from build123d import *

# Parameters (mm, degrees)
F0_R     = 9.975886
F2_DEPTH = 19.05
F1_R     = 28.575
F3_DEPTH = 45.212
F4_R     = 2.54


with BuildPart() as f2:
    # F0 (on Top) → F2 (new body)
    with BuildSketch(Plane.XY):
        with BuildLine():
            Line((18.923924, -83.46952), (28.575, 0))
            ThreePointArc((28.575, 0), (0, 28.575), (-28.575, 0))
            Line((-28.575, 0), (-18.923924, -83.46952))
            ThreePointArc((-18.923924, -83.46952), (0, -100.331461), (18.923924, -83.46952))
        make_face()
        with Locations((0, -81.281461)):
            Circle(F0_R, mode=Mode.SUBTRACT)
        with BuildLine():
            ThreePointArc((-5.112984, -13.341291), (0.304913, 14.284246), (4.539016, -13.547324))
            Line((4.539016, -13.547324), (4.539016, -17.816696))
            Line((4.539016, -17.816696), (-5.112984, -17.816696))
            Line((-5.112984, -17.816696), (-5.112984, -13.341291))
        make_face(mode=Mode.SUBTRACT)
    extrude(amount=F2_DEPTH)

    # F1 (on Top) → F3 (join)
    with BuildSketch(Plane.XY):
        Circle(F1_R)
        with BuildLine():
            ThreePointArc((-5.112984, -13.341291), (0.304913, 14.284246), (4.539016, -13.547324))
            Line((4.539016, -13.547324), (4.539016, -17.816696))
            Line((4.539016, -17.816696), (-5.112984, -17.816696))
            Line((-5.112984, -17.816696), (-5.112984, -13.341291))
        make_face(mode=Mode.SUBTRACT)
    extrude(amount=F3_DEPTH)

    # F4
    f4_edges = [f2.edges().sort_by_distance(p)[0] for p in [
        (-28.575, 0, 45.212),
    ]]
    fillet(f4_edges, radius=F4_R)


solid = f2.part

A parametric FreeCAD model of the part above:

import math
import FreeCAD as App
import Part
import Sketcher

V = App.Vector
Q = App.Units.Quantity


def edges_at(feature, points):
    """Names of the edges that pass closest to the given points."""
    edges = feature.Shape.Edges
    near = lambda p: min(range(len(edges)), key=lambda i: edges[i].distToShape(Part.Vertex(*p))[0])
    return sorted({f"Edge{near(p) + 1}" for p in points})

doc = App.newDocument("Part")
body = doc.addObject("PartDesign::Body", "Body")

# Sketch on XY plane
sketch1 = body.newObject("Sketcher::SketchObject", "Sketch")
sketch1.AttachmentSupport = (doc.getObject("XY_Plane"), [""])
sketch1.MapMode = "FlatFace"
sketch1.addGeometry(Part.LineSegment(V(18.923924, -83.46952, 0), V(28.575, 0, 0)), False)
sketch1.addGeometry(Part.ArcOfCircle(Part.Circle(V(0, 0, 0), V(0, 0, 1), 28.575), math.radians(0), math.radians(180)), False)
sketch1.addGeometry(Part.LineSegment(V(-28.575, 0, 0), V(-18.923924, -83.46952, 0)), False)
sketch1.addGeometry(Part.ArcOfCircle(Part.Circle(V(0, -81.281461, 0), V(0, 0, 1), 19.05), math.radians(-173.404522), math.radians(-6.595478)), False)
sketch1.addGeometry(Part.Circle(V(0, -81.281461, 0), V(0, 0, 1), 9.975886), False)
sketch1.addGeometry(Part.LineSegment(V(-5.112984, -17.816696, 0), V(-5.112984, -13.341291, 0)), False)
sketch1.addGeometry(Part.ArcOfCircle(Part.Circle(V(0, 0, 0), V(0, 0, 1), 14.2875), math.radians(-71.476632), math.radians(249.030915)), False)
sketch1.addGeometry(Part.LineSegment(V(4.539016, -13.547324, 0), V(4.539016, -17.816696, 0)), False)
sketch1.addGeometry(Part.LineSegment(V(4.539016, -17.816696, 0), V(-5.112984, -17.816696, 0)), False)
sketch1.addConstraint(Sketcher.Constraint("Coincident", 0, 2, 1, 1))
sketch1.addConstraint(Sketcher.Constraint("Coincident", 1, 2, 2, 1))
sketch1.addConstraint(Sketcher.Constraint("Tangent", 2, 2, 3, 1))
sketch1.addConstraint(Sketcher.Constraint("Tangent", 3, 2, 0, 1))
sketch1.addConstraint(Sketcher.Constraint("Coincident", 5, 2, 6, 2))
sketch1.addConstraint(Sketcher.Constraint("Coincident", 6, 1, 7, 1))
sketch1.addConstraint(Sketcher.Constraint("Coincident", 7, 2, 8, 1))
sketch1.addConstraint(Sketcher.Constraint("Coincident", 8, 2, 5, 1))
sketch1.addConstraint(Sketcher.Constraint("Vertical", 5))
sketch1.addConstraint(Sketcher.Constraint("Vertical", 7))
sketch1.addConstraint(Sketcher.Constraint("Horizontal", 8))
sketch1.addConstraint(Sketcher.Constraint("Coincident", 1, 3, -1, 1))
sketch1.addConstraint(Sketcher.Constraint("Coincident", 6, 3, -1, 1))
sketch1.addConstraint(Sketcher.Constraint("Coincident", 4, 3, 3, 3))
sketch1.addConstraint(Sketcher.Constraint("PointOnObject", 3, 3, -2))
sketch1.addConstraint(Sketcher.Constraint("PointOnObject", 0, 2, -1))
sketch1.addConstraint(Sketcher.Constraint("PointOnObject", 1, 2, -1))
sketch1.addConstraint(Sketcher.Constraint("Radius", 3, Q("0.75 in")))
sketch1.addConstraint(Sketcher.Constraint("Radius", 1, Q("1.125 in")))
sketch1.addConstraint(Sketcher.Constraint("Radius", 6, Q("0.5625 in")))
sketch1.addConstraint(Sketcher.Constraint("DistanceX", 8, 2, 8, 1, Q("0.38 in")))
sketch1.addConstraint(Sketcher.Constraint("Diameter", 4, Q("19.951772 mm")))
sketch1.addConstraint(Sketcher.Constraint("DistanceY", 5, 1, 5, 2, Q("4.475405 mm")))
sketch1.addConstraint(Sketcher.Constraint("DistanceY", 7, 2, 7, 1, Q("4.269372 mm")))
sketch1.addConstraint(Sketcher.Constraint("DistanceY", 3, 3, -1, 1, Q("81.281461 mm")))
pad1 = body.newObject("PartDesign::Pad", "Pad")
pad1.Profile = sketch1
pad1.Length = Q("0.75 in")

# Sketch on XY plane
sketch2 = body.newObject("Sketcher::SketchObject", "Sketch001")
sketch2.AttachmentSupport = (doc.getObject("XY_Plane"), [""])
sketch2.MapMode = "FlatFace"
sketch2.addGeometry(Part.Circle(V(0, 0, 0), V(0, 0, 1), 28.575), False)
sketch2.addGeometry(Part.LineSegment(V(-5.112984, -17.816696, 0), V(-5.112984, -13.341291, 0)), False)
sketch2.addGeometry(Part.ArcOfCircle(Part.Circle(V(0, 0, 0), V(0, 0, 1), 14.2875), math.radians(-71.476632), math.radians(249.030915)), False)
sketch2.addGeometry(Part.LineSegment(V(4.539016, -13.547324, 0), V(4.539016, -17.816696, 0)), False)
sketch2.addGeometry(Part.LineSegment(V(4.539016, -17.816696, 0), V(-5.112984, -17.816696, 0)), False)
sketch2.addConstraint(Sketcher.Constraint("Coincident", 1, 2, 2, 2))
sketch2.addConstraint(Sketcher.Constraint("Coincident", 2, 1, 3, 1))
sketch2.addConstraint(Sketcher.Constraint("Coincident", 3, 2, 4, 1))
sketch2.addConstraint(Sketcher.Constraint("Coincident", 4, 2, 1, 1))
sketch2.addConstraint(Sketcher.Constraint("Vertical", 1))
sketch2.addConstraint(Sketcher.Constraint("Vertical", 3))
sketch2.addConstraint(Sketcher.Constraint("Horizontal", 4))
sketch2.addConstraint(Sketcher.Constraint("Coincident", 0, 3, -1, 1))
sketch2.addConstraint(Sketcher.Constraint("Coincident", 2, 3, -1, 1))
sketch2.addConstraint(Sketcher.Constraint("Diameter", 0, Q("2.25 in")))
sketch2.addConstraint(Sketcher.Constraint("Radius", 2, Q("0.5625 in")))
sketch2.addConstraint(Sketcher.Constraint("DistanceX", 4, 2, 4, 1, Q("0.38 in")))
sketch2.addConstraint(Sketcher.Constraint("DistanceY", 1, 1, 1, 2, Q("4.475405 mm")))
sketch2.addConstraint(Sketcher.Constraint("DistanceY", 3, 2, 3, 1, Q("4.269372 mm")))
pad2 = body.newObject("PartDesign::Pad", "Pad001")
pad2.Profile = sketch2
pad2.Length = Q("1.78 in")
doc.recompute()

fillet = body.newObject("PartDesign::Fillet", "Fillet")
fillet.Base = (pad2, edges_at(pad2, [(-28.575, 0, 45.212)]))
fillet.Radius = Q("0.1 in")

doc.recompute()
